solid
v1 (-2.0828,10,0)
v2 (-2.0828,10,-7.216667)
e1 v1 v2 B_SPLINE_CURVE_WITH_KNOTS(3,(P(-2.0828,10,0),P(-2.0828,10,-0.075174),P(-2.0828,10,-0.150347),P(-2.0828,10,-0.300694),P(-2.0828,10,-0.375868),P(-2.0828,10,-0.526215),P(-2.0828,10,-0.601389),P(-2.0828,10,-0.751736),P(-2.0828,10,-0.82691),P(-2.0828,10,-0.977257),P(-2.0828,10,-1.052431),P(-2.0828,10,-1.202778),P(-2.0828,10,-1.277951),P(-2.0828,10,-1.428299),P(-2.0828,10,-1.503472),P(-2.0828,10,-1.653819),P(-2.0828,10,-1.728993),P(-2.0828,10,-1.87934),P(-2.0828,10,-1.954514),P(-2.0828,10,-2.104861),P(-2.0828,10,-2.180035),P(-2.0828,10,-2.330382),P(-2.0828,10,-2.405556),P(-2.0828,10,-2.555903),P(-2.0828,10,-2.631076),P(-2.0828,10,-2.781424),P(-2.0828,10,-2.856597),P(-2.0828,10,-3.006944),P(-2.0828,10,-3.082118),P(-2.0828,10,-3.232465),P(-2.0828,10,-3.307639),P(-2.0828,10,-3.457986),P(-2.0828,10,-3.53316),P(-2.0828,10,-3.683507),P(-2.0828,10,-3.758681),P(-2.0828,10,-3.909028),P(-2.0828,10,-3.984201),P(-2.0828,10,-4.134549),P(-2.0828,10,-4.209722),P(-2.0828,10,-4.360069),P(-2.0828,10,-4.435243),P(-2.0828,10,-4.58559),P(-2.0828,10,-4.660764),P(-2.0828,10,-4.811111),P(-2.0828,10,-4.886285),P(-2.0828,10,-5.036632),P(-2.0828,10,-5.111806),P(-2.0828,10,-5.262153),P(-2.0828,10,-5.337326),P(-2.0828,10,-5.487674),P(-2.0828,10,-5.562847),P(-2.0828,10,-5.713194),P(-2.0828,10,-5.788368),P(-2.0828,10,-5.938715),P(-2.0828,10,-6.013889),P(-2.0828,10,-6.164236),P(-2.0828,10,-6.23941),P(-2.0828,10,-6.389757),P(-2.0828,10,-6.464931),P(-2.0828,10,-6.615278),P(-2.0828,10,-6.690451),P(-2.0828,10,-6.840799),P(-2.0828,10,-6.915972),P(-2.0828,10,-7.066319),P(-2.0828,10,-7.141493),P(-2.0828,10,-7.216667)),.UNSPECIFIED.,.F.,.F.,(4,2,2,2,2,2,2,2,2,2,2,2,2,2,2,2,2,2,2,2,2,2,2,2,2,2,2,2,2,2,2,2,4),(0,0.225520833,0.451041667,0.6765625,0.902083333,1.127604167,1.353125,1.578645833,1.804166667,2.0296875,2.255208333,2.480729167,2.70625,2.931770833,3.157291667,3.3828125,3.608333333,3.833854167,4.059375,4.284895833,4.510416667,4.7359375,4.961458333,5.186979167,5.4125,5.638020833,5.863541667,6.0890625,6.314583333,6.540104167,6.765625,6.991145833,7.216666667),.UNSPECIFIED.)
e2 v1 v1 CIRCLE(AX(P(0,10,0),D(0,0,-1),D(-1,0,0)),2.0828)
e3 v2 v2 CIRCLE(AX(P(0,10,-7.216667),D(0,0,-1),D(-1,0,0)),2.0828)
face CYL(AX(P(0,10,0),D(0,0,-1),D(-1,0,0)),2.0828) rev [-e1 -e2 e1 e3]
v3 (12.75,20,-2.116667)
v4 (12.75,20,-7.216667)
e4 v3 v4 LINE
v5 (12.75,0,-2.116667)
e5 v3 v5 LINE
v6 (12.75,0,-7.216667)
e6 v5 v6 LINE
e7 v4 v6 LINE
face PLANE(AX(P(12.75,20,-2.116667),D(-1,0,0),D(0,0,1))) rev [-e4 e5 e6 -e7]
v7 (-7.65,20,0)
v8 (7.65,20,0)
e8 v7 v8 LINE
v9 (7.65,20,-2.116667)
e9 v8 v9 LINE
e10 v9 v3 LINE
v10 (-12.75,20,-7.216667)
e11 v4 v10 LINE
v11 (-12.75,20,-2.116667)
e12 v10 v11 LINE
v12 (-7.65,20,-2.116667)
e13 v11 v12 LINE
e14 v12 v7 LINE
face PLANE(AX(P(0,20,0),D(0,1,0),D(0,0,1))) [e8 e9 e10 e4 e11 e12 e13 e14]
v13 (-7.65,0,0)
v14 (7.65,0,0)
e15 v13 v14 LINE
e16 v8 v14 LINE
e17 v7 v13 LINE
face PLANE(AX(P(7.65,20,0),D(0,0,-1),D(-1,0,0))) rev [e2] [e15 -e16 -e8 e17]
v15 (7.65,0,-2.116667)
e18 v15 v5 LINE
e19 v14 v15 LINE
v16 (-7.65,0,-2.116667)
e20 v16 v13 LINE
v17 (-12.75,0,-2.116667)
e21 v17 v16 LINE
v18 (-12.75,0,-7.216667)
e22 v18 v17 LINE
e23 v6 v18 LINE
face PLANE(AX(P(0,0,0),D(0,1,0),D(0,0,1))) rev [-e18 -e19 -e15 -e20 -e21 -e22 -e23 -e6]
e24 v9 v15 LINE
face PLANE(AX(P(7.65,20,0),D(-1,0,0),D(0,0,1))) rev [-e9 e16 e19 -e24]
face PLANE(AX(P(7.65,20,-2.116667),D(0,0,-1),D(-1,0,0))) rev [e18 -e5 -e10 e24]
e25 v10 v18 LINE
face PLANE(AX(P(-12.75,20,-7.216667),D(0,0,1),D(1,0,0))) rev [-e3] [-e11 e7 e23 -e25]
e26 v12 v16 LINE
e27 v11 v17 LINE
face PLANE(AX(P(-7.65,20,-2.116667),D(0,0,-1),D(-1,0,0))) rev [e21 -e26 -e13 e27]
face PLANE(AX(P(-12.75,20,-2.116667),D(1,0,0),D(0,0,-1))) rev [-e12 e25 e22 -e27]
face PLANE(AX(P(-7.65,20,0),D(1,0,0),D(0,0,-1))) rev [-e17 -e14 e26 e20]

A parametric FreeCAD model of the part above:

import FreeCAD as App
import Part
import Sketcher

V = App.Vector

doc = App.newDocument("Part")
params = doc.addObject("Spreadsheet::Sheet", "Params")
for row, (alias, value) in enumerate([
    ("sketch1_width", "15.3 mm"),
    ("sketch1_width2", "5.1 mm"),
    ("pad1_length", "20 mm"),
], start=1):
    params.set(f"A{row}", alias)
    params.set(f"B{row}", "=" + value)
    params.setAlias(f"B{row}", alias)

body = doc.addObject("PartDesign::Body", "Body")

# Sketch on XZ plane
sketch1 = body.newObject("Sketcher::SketchObject", "Sketch")
sketch1.AttachmentSupport = (doc.getObject("XZ_Plane"), [""])
sketch1.MapMode = "FlatFace"
sketch1.addGeometry([
    Part.LineSegment(V(-7.7, 0, 0), V(7.7, 0, 0)),  # 0
    Part.LineSegment(V(7.7, 0, 0), V(7.7, -2.1, 0)),  # 1
    Part.LineSegment(V(7.7, -2.1, 0), V(12.8, -2.1, 0)),  # 2
    Part.LineSegment(V(12.8, -2.1, 0), V(12.8, -7.2, 0)),  # 3
    Part.LineSegment(V(12.8, -7.2, 0), V(-12.8, -7.2, 0)),  # 4
    Part.LineSegment(V(-12.8, -7.2, 0), V(-12.8, -2.1, 0)),  # 5
    Part.LineSegment(V(-12.8, -2.1, 0), V(-7.7, -2.1, 0)),  # 6
    Part.LineSegment(V(-7.7, -2.1, 0), V(-7.7, 0, 0)),  # 7
], False)
sketch1.addConstraint([
    Sketcher.Constraint("Coincident", 0, 2, 1, 1),
    Sketcher.Constraint("Coincident", 1, 2, 2, 1),
    Sketcher.Constraint("Coincident", 2, 2, 3, 1),
    Sketcher.Constraint("Coincident", 3, 2, 4, 1),
    Sketcher.Constraint("Coincident", 4, 2, 5, 1),
    Sketcher.Constraint("Coincident", 5, 2, 6, 1),
    Sketcher.Constraint("Coincident", 6, 2, 7, 1),
    Sketcher.Constraint("Coincident", 7, 2, 0, 1),
    Sketcher.Constraint("Horizontal", 0),
    Sketcher.Constraint("Vertical", 1),
    Sketcher.Constraint("Horizontal", 2),
    Sketcher.Constraint("Vertical", 3),
    Sketcher.Constraint("Horizontal", 4),
    Sketcher.Constraint("Vertical", 5),
    Sketcher.Constraint("Horizontal", 6),
    Sketcher.Constraint("Vertical", 7),
    Sketcher.Constraint("Symmetric", 0, 2, 7, 2, -1, 1),
    Sketcher.Constraint("Symmetric", 2, 2, 5, 2, -2),
    Sketcher.Constraint("Equal", 6, 3),
    Sketcher.Constraint("DistanceX", 0, 1, 0, 2, 15.3),
    Sketcher.Constraint("DistanceX", 2, 1, 2, 2, 5.1),
    Sketcher.Constraint("DistanceY", 1, 2, 1, 1, 2.116667),
])
sketch1.setExpression("Constraints[19]", "Params.sketch1_width")
sketch1.setExpression("Constraints[20]", "Params.sketch1_width2")
pad1 = body.newObject("PartDesign::Pad", "Pad")
pad1.Profile = sketch1
pad1.setExpression("Length", "Params.pad1_length")
pad1.Reversed = True

# Sketch on XY plane
sketch2 = body.newObject("Sketcher::SketchObject", "Sketch001")
sketch2.AttachmentSupport = (doc.getObject("XY_Plane"), [""])
sketch2.MapMode = "FlatFace"
sketch2.AttachmentOffset = App.Placement(V(0, 0, -7.216667), App.Rotation())
sketch2.addGeometry(Part.Circle(V(0, 10, 0), V(0, 0, 1), 2.1), False)
sketch2.addConstraint([
    Sketcher.Constraint("PointOnObject", 0, 3, -2),
    Sketcher.Constraint("DistanceY", -1, 1, 0, 3, 10.0),
    Sketcher.Constraint("Diameter", 0, 4.1656),
])
pocket1 = body.newObject("PartDesign::Pocket", "Pocket")
pocket1.Profile = sketch2
pocket1.Type = "ThroughAll"
pocket1.Reversed = True

doc.recompute()
